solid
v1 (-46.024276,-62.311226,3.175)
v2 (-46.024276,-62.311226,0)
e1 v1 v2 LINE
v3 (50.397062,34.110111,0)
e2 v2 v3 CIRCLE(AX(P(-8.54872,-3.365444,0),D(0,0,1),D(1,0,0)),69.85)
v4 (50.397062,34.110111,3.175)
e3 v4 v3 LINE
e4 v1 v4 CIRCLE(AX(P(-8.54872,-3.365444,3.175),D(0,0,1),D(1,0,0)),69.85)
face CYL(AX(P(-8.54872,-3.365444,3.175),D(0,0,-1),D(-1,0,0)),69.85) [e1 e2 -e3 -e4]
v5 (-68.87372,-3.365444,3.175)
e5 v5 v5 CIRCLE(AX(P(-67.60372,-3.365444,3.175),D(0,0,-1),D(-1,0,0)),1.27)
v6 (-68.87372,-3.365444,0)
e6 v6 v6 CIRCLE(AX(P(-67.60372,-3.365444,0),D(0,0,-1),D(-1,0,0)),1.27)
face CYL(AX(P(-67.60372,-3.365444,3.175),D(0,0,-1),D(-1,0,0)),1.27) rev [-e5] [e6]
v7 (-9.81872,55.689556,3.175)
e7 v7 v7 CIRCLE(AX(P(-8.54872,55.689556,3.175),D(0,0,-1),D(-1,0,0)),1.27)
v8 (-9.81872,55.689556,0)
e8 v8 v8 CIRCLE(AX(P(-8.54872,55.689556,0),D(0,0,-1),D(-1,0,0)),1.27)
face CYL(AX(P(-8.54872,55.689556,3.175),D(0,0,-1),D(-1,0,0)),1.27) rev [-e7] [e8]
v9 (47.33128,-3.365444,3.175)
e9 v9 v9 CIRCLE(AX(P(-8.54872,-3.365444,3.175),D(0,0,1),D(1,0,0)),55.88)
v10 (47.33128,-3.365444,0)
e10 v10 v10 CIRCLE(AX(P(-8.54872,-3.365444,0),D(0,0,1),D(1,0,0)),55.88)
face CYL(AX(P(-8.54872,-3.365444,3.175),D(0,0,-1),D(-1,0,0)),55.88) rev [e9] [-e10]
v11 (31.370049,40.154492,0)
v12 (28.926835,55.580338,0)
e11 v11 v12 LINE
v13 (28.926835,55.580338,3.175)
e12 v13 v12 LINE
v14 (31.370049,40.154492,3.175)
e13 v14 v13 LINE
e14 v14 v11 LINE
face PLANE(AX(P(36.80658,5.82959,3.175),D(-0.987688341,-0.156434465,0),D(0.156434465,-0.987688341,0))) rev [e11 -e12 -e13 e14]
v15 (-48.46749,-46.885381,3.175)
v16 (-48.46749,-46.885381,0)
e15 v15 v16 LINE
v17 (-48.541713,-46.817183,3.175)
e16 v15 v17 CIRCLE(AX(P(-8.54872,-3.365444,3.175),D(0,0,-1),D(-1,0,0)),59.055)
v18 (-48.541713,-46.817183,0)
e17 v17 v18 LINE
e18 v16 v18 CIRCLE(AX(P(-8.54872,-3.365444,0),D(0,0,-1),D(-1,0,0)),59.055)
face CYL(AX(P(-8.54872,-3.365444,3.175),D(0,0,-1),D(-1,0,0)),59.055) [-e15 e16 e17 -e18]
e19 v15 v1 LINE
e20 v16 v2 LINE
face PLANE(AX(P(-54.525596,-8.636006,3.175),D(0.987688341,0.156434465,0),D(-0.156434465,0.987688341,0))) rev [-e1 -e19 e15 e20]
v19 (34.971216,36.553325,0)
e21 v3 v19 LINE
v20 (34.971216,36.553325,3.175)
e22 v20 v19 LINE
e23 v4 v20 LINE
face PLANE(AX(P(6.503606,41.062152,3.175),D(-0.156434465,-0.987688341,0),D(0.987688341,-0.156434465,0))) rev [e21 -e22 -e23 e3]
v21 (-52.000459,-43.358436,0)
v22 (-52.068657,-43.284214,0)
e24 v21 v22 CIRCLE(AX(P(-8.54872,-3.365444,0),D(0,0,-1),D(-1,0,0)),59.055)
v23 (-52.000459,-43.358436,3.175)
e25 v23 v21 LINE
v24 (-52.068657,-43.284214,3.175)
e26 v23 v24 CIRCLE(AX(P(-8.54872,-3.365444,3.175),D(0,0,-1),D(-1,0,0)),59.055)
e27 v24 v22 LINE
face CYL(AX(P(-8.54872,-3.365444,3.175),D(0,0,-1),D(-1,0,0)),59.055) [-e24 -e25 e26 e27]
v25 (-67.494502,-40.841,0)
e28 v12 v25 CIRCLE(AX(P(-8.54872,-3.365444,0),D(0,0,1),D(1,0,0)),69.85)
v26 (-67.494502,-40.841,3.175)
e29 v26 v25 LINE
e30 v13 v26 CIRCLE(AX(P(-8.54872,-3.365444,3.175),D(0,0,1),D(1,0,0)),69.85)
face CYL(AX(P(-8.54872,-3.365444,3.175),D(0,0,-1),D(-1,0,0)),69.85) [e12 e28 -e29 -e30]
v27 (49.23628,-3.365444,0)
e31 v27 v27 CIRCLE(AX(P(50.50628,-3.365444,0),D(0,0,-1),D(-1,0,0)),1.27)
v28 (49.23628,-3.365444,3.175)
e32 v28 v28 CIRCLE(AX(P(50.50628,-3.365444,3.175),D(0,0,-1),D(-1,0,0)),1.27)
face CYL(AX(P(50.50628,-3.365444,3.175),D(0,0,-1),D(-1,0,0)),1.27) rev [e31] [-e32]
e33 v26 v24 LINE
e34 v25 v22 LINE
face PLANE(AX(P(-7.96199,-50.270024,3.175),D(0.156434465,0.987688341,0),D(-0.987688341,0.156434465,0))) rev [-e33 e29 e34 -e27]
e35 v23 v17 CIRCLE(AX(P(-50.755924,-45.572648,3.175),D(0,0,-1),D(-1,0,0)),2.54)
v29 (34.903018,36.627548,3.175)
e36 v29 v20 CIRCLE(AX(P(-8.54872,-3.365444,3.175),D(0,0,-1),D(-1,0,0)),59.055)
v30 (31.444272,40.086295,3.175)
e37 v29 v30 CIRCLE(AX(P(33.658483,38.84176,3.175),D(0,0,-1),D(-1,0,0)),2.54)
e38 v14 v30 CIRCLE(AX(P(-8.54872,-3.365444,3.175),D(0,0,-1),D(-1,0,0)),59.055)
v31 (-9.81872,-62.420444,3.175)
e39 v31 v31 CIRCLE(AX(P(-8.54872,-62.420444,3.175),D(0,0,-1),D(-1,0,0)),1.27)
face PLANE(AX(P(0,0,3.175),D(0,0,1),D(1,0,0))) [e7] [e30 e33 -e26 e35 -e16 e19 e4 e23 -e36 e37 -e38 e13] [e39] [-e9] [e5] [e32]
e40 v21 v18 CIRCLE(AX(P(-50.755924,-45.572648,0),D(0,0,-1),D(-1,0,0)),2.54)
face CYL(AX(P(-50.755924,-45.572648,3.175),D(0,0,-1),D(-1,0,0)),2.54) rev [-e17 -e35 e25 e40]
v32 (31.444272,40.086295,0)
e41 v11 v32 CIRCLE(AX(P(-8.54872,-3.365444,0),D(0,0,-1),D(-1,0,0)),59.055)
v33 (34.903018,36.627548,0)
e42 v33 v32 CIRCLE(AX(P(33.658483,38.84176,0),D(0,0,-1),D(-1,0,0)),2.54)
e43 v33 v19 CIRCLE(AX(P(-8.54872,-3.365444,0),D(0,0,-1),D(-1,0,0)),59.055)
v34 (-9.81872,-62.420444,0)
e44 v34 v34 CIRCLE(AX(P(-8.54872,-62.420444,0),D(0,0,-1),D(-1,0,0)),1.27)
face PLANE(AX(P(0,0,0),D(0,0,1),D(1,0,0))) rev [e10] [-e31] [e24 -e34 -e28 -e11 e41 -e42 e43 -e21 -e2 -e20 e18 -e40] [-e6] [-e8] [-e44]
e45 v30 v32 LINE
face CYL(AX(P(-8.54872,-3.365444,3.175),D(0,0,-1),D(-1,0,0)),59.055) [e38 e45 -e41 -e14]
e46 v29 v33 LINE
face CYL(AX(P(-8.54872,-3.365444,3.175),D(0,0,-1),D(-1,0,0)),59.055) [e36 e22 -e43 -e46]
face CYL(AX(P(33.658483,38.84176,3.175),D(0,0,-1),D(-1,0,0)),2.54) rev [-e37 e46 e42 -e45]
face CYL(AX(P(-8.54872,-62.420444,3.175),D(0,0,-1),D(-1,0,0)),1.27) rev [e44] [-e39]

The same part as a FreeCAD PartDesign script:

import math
import FreeCAD as App
import Part
import Sketcher
from FreeCAD import Vector
Q = App.Units.Quantity

doc = App.newDocument("Part")
body = doc.addObject("PartDesign::Body", "Body")

# Sketch on XY plane
sketch1 = doc.addObject("Sketcher::SketchObject", "Sketch")
body.addObject(sketch1)
sketch1.AttachmentSupport = (doc.XY_Plane, [""])
sketch1.MapMode = "FlatFace"
sketch1.addGeometry([
    Part.Circle(Vector(-8.54872, -3.365444, 0), Vector(0, 0, 1), 69.85),
    Part.Circle(Vector(-8.54872, -3.365444, 0), Vector(0, 0, 1), 55.88),
], False)
sketch1.addConstraint([
    Sketcher.Constraint("Coincident", 1, 3, 0, 3),
    Sketcher.Constraint("Diameter", 0, Q("5.5 in")),
    Sketcher.Constraint("Diameter", 1, Q("4.4 in")),
    Sketcher.Constraint("DistanceX", 0, 3, -1, 1, Q("8.54872 mm")),
    Sketcher.Constraint("DistanceY", 0, 3, -1, 1, Q("3.365444 mm")),
])
pad1 = doc.addObject("PartDesign::Pad", "Pad")
body.addObject(pad1)
pad1.Profile = sketch1
pad1.Length = Q("0.125 in")

# Sketch on XY plane
sketch2 = doc.addObject("Sketcher::SketchObject", "Sketch001")
body.addObject(sketch2)
sketch2.AttachmentSupport = (doc.XY_Plane, [""])
sketch2.MapMode = "FlatFace"
sketch2.addGeometry([
    Part.ArcOfCircle(Part.Circle(Vector(-8.54872, -3.365444, 0), Vector(0, 0, 1), 69.85), math.radians(32.446697), math.radians(57.553303)),  # 0
    Part.LineSegment(Vector(50.397062, 34.110111, 0), Vector(34.971216, 36.553325, 0)),  # 1
    Part.ArcOfCircle(Part.Circle(Vector(-8.549885, -3.366515, 0), Vector(0, 0, 1), 59.056582), math.radians(42.528682), math.radians(42.626473)),  # 2
    Part.ArcOfCircle(Part.Circle(Vector(33.658483, 38.84176, 0), Vector(0, 0, 1), 2.54), math.radians(150.661102), math.radians(299.338898)),  # 3
    Part.ArcOfCircle(Part.Circle(Vector(-8.549106, -3.365864, 0), Vector(0, 0, 1), 59.05557), math.radians(47.373526), math.radians(47.471319)),  # 4
    Part.LineSegment(Vector(31.370049, 40.154492, 0), Vector(28.926835, 55.580338, 0)),  # 5
    Part.ArcOfCircle(Part.Circle(Vector(-8.54872, -3.365444, 0), Vector(0, 0, 1), 69.85), math.radians(-147.553303), math.radians(-122.446697)),  # 6
    Part.LineSegment(Vector(-67.494502, -40.841, 0), Vector(-52.068657, -43.284214, 0)),  # 7
    Part.ArcOfCircle(Part.Circle(Vector(-8.549728, -3.36637, 0), Vector(0, 0, 1), 59.053632), math.radians(-137.471321), math.radians(-137.373525)),  # 8
    Part.ArcOfCircle(Part.Circle(Vector(-50.755924, -45.572648, 0), Vector(0, 0, 1), 2.54), math.radians(-29.338898), math.radians(119.338898)),  # 9
    Part.ArcOfCircle(Part.Circle(Vector(-8.549646, -3.366451, 0), Vector(0, 0, 1), 59.053632), math.radians(-132.626475), math.radians(-132.528679)),  # 10
    Part.LineSegment(Vector(-48.46749, -46.885381, 0), Vector(-46.024276, -62.311226, 0)),  # 11
    Part.Circle(Vector(50.50628, -3.365444, 0), Vector(0, 0, 1), 1.27),  # 12
    Part.Circle(Vector(-8.54872, -62.420444, 0), Vector(0, 0, 1), 1.27),  # 13
    Part.Circle(Vector(-8.54872, 55.689556, 0), Vector(0, 0, 1), 1.27),  # 14
    Part.Circle(Vector(-67.60372, -3.365444, 0), Vector(0, 0, 1), 1.27),  # 15
], False)
sketch2.addConstraint([
    Sketcher.Constraint("Coincident", 0, 1, 1, 1),
    Sketcher.Constraint("Coincident", 1, 2, 2, 1),
    Sketcher.Constraint("Coincident", 2, 2, 3, 2),
    Sketcher.Constraint("Coincident", 3, 1, 4, 1),
    Sketcher.Constraint("Coincident", 4, 2, 5, 1),
    Sketcher.Constraint("Coincident", 5, 2, 0, 2),
    Sketcher.Constraint("Coincident", 6, 1, 7, 1),
    Sketcher.Constraint("Coincident", 7, 2, 8, 1),
    Sketcher.Constraint("Coincident", 8, 2, 9, 2),
    Sketcher.Constraint("Coincident", 9, 1, 10, 1),
    Sketcher.Constraint("Coincident", 10, 2, 11, 1),
    Sketcher.Constraint("Coincident", 11, 2, 6, 2),
    Sketcher.Constraint("Coincident", 6, 3, 0, 3),
    Sketcher.Constraint("Equal", 0, 6),
    Sketcher.Constraint("Equal", 3, 9),
    Sketcher.Constraint("Equal", 8, 10),
    Sketcher.Constraint("Equal", 12, 13),
    Sketcher.Constraint("Equal", 13, 14),
    Sketcher.Constraint("Equal", 14, 15),
    Sketcher.Constraint("Parallel", 1, 7),
    Sketcher.Constraint("Parallel", 5, 11),
    Sketcher.Constraint("Horizontal", 6, 3, 12, 3),
    Sketcher.Constraint("Horizontal", 12, 3, 15, 3),
    Sketcher.Constraint("Vertical", 6, 3, 13, 3),
    Sketcher.Constraint("Vertical", 13, 3, 14, 3),
    Sketcher.Constraint("Equal", 1, 5),
    Sketcher.Constraint("Equal", 5, 7),
    Sketcher.Constraint("Equal", 7, 11),
    Sketcher.Constraint("Diameter", 12, Q("0.1 in")),
    Sketcher.Constraint("Radius", 3, Q("0.1 in")),
    Sketcher.Constraint("Radius", 0, Q("2.75 in")),
    Sketcher.Constraint("Angle", 1, Q("171 deg")),
    Sketcher.Constraint("Angle", 5, Q("99 deg")),
    Sketcher.Constraint("Radius", 4, Q("59.05557 mm")),
    Sketcher.Constraint("Radius", 8, Q("59.053632 mm")),
    Sketcher.Constraint("DistanceX", 0, 3, 12, 3, Q("2.325 in")),
    Sketcher.Constraint("DistanceY", 0, 3, 14, 3, Q("2.325 in")),
    Sketcher.Constraint("Radius", 2, Q("59.056582 mm")),
    Sketcher.Constraint("DistanceX", 0, 1, 12, 3, Q("0.0042999 in")),
    Sketcher.Constraint("DistanceX", 15, 3, 6, 1, Q("0.0042999 in")),
    Sketcher.Constraint("DistanceX", 6, 1, 13, 3, Q("2.3207001 in")),
    Sketcher.Constraint("DistanceY", 6, 1, -1, 1, Q("40.841 mm")),
    Sketcher.Constraint("DistanceY", 7, 2, 2, 3, Q("39.917699 mm")),
    Sketcher.Constraint("Distance", 1, Q("15.618131 mm")),
    Sketcher.Constraint("DistanceX", 0, 3, -1, 1, Q("8.54872 mm")),
    Sketcher.Constraint("DistanceY", -1, 1, 3, 3, Q("38.84176 mm")),
    Sketcher.Constraint("DistanceY", 8, 3, -1, 1, Q("3.36637 mm")),
    Sketcher.Constraint("DistanceY", 10, 3, -1, 1, Q("3.366451 mm")),
    Sketcher.Constraint("DistanceX", -1, 1, 2, 2, Q("34.903018 mm")),
    Sketcher.Constraint("DistanceX", -1, 1, 3, 1, Q("31.444272 mm")),
    Sketcher.Constraint("DistanceX", 8, 2, -1, 1, Q("52.000459 mm")),
    Sketcher.Constraint("DistanceX", 10, 2, -1, 1, Q("48.46749 mm")),
    Sketcher.Constraint("DistanceY", 4, 3, 0, 3, Q("0.00042 mm")),
    Sketcher.Constraint("DistanceX", 9, 3, 2, 3, Q("42.206039 mm")),
    Sketcher.Constraint("DistanceY", 13, 3, 2, 3, Q("59.053929 mm")),
])
pocket1 = doc.addObject("PartDesign::Pocket", "Pocket")
body.addObject(pocket1)
pocket1.Profile = sketch2
pocket1.Type = "ThroughAll"
pocket1.Reversed = True

doc.recompute()
